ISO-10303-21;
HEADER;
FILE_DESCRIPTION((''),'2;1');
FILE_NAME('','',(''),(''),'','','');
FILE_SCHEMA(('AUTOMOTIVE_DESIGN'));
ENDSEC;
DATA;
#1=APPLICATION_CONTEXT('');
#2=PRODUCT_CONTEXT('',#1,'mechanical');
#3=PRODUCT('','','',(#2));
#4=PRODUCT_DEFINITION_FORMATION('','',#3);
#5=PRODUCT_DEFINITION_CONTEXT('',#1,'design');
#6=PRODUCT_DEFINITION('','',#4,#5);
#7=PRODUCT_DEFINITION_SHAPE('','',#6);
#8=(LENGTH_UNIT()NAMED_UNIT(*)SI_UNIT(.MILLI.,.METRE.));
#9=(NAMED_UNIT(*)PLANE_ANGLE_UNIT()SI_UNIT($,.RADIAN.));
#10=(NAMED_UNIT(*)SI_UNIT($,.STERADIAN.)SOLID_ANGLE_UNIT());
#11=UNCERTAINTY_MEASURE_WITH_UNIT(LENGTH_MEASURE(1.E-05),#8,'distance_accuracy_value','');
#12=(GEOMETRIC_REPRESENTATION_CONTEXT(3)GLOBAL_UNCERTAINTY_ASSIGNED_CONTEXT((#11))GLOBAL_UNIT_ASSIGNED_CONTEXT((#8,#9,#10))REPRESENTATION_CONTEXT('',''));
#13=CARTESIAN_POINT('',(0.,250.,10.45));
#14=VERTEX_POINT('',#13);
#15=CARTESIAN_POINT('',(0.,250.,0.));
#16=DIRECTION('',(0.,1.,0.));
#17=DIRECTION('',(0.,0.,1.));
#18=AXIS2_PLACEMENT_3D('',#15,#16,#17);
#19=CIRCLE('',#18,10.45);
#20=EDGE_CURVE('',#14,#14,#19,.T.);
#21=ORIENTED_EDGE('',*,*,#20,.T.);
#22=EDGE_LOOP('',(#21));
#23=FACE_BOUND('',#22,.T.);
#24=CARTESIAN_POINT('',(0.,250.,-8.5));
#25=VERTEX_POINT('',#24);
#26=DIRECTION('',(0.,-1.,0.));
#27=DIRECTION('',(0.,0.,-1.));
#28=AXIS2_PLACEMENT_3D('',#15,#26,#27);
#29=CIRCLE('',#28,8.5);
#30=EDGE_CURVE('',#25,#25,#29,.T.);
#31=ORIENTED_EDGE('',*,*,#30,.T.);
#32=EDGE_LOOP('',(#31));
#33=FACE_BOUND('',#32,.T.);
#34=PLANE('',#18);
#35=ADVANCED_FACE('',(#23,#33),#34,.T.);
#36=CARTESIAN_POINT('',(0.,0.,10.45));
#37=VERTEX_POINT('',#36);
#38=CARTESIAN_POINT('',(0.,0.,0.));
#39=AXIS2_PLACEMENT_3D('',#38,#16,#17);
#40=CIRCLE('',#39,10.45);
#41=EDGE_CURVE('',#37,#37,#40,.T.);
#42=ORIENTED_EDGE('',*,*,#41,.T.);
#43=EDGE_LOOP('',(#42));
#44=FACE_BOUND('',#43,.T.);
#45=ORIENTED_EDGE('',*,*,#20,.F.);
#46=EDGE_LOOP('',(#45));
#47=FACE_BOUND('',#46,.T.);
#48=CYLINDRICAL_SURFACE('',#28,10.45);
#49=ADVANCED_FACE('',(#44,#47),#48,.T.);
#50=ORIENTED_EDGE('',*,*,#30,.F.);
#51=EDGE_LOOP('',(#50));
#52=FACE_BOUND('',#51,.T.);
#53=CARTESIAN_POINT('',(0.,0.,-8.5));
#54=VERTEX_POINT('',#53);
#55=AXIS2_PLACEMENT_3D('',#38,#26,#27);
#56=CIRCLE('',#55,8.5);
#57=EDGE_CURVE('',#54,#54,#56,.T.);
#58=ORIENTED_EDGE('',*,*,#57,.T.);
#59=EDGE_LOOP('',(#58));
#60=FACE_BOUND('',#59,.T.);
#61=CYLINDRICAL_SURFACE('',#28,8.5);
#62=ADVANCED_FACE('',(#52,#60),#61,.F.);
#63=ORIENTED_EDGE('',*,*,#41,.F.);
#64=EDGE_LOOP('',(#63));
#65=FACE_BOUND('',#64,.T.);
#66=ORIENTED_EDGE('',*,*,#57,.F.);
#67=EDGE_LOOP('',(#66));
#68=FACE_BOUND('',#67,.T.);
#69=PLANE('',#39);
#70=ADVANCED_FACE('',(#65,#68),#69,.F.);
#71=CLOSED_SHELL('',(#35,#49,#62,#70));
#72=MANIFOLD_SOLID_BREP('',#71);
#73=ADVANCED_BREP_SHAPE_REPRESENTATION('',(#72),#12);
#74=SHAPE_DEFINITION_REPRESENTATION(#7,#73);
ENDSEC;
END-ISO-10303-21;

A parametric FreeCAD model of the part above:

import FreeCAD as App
import Part
import Sketcher

doc = App.newDocument("Part")
body = doc.addObject("PartDesign::Body", "Body")

# Sketch on XZ plane
sketch1 = doc.addObject("Sketcher::SketchObject", "Sketch")
body.addObject(sketch1)
sketch1.AttachmentSupport = (doc.XZ_Plane, [""])
sketch1.MapMode = "FlatFace"
sketch1.addGeometry(Part.Circle(App.Vector(0, 0, 0), App.Vector(0, 0, 1), 10), False)
sketch1.addConstraint([
    Sketcher.Constraint("Coincident", 0, 3, -1, 1),
    Sketcher.Constraint("Diameter", 0, 20.9),
])
pad1 = doc.addObject("PartDesign::Pad", "Pad")
body.addObject(pad1)
pad1.Profile = sketch1
pad1.Length = 250
pad1.Reversed = True

# Sketch on XZ plane
sketch2 = doc.addObject("Sketcher::SketchObject", "Sketch001")
body.addObject(sketch2)
sketch2.AttachmentSupport = (doc.XZ_Plane, [""])
sketch2.MapMode = "FlatFace"
sketch2.addGeometry(Part.Circle(App.Vector(0, 0, 0), App.Vector(0, 0, 1), 8), False)
sketch2.addConstraint([
    Sketcher.Constraint("Coincident", 0, 3, -1, 1),
    Sketcher.Constraint("Diameter", 0, 17.0),
])
pocket1 = doc.addObject("PartDesign::Pocket", "Pocket")
body.addObject(pocket1)
pocket1.Profile = sketch2
pocket1.Type = "ThroughAll"

doc.recompute()
